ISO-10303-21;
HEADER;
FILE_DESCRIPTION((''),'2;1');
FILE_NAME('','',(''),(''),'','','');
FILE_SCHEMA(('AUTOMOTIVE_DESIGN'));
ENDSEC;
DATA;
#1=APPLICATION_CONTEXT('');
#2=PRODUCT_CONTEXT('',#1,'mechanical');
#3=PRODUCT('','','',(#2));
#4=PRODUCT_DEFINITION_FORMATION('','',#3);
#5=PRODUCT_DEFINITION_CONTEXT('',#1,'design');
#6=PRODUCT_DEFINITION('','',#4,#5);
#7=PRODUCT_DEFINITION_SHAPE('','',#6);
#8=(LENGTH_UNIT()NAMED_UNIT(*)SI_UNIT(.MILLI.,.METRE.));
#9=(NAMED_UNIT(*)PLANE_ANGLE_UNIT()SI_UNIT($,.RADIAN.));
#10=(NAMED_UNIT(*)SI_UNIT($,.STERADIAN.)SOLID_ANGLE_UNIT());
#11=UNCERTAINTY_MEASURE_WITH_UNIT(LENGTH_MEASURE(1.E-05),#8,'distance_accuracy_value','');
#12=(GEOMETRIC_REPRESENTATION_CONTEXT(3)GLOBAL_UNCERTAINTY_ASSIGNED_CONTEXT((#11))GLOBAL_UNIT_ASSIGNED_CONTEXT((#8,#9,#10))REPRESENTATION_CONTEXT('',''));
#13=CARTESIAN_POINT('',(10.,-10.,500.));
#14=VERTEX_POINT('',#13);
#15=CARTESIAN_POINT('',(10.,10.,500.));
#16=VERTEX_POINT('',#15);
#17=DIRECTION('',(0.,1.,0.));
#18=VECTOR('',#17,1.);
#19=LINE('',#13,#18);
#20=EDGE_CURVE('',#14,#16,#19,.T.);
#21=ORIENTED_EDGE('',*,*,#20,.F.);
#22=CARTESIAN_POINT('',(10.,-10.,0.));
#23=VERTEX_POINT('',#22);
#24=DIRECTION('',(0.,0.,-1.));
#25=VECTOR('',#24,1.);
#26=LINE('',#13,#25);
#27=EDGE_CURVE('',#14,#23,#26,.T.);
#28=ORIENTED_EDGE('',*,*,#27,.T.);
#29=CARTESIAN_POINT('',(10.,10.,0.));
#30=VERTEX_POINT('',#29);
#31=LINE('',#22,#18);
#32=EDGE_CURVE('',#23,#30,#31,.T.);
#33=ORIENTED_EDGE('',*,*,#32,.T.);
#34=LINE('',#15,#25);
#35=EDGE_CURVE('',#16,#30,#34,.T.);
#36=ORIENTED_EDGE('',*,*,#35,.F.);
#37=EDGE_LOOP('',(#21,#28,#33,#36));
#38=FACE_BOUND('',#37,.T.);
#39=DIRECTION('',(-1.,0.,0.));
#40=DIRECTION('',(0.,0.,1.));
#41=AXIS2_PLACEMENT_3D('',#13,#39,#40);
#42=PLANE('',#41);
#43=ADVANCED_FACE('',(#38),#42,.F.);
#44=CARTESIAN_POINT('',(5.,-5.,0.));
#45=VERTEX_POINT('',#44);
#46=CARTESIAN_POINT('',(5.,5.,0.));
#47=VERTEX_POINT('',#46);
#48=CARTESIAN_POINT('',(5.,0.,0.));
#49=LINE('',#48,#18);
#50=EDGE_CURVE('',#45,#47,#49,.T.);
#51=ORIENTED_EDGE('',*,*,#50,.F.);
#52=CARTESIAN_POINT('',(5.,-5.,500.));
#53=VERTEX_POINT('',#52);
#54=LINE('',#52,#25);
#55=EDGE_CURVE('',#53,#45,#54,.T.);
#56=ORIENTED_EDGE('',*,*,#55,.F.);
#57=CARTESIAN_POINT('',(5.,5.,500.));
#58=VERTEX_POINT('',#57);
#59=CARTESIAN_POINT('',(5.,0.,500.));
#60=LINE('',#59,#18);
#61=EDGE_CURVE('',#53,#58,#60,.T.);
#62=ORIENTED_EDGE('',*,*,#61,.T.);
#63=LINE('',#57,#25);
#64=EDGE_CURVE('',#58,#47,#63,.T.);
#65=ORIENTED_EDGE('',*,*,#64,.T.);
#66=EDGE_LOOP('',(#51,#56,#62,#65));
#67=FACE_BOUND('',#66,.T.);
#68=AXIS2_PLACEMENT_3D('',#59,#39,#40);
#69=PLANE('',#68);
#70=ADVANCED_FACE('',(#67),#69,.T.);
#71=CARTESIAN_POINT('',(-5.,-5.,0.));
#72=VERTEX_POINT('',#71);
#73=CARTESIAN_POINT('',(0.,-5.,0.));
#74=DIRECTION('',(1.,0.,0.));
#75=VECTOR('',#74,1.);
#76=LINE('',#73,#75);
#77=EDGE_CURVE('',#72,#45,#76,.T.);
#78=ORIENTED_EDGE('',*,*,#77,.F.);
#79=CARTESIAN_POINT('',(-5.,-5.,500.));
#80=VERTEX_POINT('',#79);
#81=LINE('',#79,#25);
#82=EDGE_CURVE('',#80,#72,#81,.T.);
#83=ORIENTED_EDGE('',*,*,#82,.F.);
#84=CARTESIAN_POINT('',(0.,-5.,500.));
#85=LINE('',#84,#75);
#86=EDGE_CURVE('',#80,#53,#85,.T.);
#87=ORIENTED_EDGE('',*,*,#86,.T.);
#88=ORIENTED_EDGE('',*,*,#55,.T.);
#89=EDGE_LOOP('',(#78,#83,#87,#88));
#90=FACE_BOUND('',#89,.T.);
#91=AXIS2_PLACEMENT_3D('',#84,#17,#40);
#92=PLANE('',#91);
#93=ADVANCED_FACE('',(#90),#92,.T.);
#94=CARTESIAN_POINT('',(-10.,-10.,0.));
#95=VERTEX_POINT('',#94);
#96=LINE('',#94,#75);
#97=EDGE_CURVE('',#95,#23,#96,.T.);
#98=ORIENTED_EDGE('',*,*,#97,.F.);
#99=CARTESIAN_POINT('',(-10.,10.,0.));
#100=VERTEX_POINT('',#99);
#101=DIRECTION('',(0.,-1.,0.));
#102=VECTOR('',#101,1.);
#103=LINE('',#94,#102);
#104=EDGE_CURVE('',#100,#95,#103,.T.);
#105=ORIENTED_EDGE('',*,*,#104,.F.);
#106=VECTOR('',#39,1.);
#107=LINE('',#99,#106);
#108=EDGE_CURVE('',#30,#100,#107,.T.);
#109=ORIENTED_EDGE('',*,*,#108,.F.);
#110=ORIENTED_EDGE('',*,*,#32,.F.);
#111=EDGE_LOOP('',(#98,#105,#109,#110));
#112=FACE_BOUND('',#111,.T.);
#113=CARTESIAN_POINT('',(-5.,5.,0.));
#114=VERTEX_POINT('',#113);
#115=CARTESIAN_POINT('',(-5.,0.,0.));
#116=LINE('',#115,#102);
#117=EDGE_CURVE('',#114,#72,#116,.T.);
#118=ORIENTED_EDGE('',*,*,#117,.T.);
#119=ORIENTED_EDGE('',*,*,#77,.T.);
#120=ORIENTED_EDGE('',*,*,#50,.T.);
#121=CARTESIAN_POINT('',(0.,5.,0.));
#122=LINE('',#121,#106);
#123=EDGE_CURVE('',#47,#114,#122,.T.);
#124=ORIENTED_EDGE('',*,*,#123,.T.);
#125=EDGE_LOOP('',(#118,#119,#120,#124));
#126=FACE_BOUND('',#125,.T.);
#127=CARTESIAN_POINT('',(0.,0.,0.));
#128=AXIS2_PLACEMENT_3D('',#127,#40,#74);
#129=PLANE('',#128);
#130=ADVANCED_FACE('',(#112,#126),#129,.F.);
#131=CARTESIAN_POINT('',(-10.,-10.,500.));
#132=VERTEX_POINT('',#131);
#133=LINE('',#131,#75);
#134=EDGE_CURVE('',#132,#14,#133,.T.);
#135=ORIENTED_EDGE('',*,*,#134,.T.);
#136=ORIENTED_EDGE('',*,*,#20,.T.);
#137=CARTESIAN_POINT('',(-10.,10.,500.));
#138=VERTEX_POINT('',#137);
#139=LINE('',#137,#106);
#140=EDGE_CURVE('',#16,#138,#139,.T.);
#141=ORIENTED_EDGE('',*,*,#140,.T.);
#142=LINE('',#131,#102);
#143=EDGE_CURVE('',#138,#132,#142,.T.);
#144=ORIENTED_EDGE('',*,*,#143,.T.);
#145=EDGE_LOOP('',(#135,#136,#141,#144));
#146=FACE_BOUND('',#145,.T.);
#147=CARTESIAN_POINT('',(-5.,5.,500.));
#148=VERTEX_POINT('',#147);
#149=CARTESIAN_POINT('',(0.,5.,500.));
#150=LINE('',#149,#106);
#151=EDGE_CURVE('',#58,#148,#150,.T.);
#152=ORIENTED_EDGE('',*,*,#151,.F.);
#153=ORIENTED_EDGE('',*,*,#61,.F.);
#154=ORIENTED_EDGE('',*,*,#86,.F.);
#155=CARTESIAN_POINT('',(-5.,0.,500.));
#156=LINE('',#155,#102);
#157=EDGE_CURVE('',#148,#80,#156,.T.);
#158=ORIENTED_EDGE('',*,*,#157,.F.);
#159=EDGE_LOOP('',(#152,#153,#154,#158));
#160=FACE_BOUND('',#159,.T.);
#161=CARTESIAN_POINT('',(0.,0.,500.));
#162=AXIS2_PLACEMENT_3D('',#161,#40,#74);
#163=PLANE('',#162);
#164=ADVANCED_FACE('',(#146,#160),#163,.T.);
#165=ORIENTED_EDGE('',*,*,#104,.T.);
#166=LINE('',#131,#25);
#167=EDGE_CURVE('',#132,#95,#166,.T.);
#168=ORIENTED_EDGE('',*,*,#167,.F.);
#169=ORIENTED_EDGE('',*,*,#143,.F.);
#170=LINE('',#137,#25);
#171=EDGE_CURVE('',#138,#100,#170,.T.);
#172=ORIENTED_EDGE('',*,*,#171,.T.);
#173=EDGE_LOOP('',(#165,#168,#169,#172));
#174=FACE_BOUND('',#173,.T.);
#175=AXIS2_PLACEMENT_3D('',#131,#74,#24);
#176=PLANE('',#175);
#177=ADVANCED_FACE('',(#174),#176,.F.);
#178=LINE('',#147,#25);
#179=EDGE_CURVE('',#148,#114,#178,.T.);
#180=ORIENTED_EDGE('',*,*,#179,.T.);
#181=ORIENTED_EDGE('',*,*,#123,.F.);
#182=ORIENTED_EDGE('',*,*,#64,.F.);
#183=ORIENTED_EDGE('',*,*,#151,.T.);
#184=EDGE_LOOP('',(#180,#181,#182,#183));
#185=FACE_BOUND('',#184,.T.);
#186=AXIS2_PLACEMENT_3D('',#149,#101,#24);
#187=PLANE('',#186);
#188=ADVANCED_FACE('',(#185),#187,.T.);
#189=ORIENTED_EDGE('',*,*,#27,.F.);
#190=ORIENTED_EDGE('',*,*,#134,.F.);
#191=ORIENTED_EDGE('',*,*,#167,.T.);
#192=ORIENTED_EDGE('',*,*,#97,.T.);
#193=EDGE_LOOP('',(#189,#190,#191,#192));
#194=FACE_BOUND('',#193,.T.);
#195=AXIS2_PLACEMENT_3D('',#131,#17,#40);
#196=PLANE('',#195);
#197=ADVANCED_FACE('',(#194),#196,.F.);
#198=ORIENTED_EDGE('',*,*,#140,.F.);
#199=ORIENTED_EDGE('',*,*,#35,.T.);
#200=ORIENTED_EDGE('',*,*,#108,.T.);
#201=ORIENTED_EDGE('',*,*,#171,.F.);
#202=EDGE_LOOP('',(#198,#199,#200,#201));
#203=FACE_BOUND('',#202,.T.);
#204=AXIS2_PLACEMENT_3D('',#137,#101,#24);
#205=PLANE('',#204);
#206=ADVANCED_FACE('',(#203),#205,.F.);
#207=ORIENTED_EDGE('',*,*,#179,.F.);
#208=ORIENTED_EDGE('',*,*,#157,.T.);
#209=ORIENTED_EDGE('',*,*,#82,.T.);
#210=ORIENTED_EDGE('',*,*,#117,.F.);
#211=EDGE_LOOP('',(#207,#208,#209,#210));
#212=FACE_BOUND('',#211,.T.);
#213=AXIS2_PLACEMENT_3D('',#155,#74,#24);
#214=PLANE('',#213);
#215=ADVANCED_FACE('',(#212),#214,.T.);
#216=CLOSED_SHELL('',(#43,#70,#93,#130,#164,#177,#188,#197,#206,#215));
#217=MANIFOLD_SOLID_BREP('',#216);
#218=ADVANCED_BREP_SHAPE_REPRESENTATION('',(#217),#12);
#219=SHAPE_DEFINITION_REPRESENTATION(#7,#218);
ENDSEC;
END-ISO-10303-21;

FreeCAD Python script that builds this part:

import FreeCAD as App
import Part
import Sketcher
from FreeCAD import Vector


def add_polygon(sketch, points):
    """Adds a closed chain of lines whose ends are joined by coincident constraints."""
    first, n = sketch.GeometryCount, len(points)
    for a, b in zip(points, points[1:] + points[:1]):
        sketch.addGeometry(Part.LineSegment(App.Vector(*a, 0), App.Vector(*b, 0)), False)
    for i in range(n):
        sketch.addConstraint(Sketcher.Constraint("Coincident", first + i, 2, first + (i + 1) % n, 1))

doc = App.newDocument("Part")
body = doc.addObject("PartDesign::Body", "Body")

# Sketch on XY plane
sketch1 = body.newObject("Sketcher::SketchObject", "Sketch")
sketch1.AttachmentSupport = (doc.getObject("XY_Plane"), [""])
sketch1.MapMode = "FlatFace"
add_polygon(sketch1, [(-10, 10), (-10, -10), (10, -10), (10, 10)])  # lines 0-3
add_polygon(sketch1, [(5, -5), (-5, -5), (-5, 5), (5, 5)])  # lines 4-7
sketch1.addConstraint([
    Sketcher.Constraint("Vertical", 0),
    Sketcher.Constraint("Horizontal", 1),
    Sketcher.Constraint("Vertical", 2),
    Sketcher.Constraint("Horizontal", 3),
    Sketcher.Constraint("Horizontal", 4),
    Sketcher.Constraint("Vertical", 5),
    Sketcher.Constraint("Horizontal", 6),
    Sketcher.Constraint("Vertical", 7),
    Sketcher.Constraint("Symmetric", 0, 2, 2, 2, -1, 1),
    Sketcher.Constraint("Symmetric", 4, 2, 6, 2, -1, 1),
    Sketcher.Constraint("Equal", 3, 0),
    Sketcher.Constraint("Equal", 6, 5),
    Sketcher.Constraint("DistanceX", 1, 1, 1, 2, 20.0),
    Sketcher.Constraint("DistanceX", 4, 2, 4, 1, 10.0),
])
pad1 = body.newObject("PartDesign::Pad", "Pad")
pad1.Profile = sketch1
pad1.Length = 500

doc.recompute()
